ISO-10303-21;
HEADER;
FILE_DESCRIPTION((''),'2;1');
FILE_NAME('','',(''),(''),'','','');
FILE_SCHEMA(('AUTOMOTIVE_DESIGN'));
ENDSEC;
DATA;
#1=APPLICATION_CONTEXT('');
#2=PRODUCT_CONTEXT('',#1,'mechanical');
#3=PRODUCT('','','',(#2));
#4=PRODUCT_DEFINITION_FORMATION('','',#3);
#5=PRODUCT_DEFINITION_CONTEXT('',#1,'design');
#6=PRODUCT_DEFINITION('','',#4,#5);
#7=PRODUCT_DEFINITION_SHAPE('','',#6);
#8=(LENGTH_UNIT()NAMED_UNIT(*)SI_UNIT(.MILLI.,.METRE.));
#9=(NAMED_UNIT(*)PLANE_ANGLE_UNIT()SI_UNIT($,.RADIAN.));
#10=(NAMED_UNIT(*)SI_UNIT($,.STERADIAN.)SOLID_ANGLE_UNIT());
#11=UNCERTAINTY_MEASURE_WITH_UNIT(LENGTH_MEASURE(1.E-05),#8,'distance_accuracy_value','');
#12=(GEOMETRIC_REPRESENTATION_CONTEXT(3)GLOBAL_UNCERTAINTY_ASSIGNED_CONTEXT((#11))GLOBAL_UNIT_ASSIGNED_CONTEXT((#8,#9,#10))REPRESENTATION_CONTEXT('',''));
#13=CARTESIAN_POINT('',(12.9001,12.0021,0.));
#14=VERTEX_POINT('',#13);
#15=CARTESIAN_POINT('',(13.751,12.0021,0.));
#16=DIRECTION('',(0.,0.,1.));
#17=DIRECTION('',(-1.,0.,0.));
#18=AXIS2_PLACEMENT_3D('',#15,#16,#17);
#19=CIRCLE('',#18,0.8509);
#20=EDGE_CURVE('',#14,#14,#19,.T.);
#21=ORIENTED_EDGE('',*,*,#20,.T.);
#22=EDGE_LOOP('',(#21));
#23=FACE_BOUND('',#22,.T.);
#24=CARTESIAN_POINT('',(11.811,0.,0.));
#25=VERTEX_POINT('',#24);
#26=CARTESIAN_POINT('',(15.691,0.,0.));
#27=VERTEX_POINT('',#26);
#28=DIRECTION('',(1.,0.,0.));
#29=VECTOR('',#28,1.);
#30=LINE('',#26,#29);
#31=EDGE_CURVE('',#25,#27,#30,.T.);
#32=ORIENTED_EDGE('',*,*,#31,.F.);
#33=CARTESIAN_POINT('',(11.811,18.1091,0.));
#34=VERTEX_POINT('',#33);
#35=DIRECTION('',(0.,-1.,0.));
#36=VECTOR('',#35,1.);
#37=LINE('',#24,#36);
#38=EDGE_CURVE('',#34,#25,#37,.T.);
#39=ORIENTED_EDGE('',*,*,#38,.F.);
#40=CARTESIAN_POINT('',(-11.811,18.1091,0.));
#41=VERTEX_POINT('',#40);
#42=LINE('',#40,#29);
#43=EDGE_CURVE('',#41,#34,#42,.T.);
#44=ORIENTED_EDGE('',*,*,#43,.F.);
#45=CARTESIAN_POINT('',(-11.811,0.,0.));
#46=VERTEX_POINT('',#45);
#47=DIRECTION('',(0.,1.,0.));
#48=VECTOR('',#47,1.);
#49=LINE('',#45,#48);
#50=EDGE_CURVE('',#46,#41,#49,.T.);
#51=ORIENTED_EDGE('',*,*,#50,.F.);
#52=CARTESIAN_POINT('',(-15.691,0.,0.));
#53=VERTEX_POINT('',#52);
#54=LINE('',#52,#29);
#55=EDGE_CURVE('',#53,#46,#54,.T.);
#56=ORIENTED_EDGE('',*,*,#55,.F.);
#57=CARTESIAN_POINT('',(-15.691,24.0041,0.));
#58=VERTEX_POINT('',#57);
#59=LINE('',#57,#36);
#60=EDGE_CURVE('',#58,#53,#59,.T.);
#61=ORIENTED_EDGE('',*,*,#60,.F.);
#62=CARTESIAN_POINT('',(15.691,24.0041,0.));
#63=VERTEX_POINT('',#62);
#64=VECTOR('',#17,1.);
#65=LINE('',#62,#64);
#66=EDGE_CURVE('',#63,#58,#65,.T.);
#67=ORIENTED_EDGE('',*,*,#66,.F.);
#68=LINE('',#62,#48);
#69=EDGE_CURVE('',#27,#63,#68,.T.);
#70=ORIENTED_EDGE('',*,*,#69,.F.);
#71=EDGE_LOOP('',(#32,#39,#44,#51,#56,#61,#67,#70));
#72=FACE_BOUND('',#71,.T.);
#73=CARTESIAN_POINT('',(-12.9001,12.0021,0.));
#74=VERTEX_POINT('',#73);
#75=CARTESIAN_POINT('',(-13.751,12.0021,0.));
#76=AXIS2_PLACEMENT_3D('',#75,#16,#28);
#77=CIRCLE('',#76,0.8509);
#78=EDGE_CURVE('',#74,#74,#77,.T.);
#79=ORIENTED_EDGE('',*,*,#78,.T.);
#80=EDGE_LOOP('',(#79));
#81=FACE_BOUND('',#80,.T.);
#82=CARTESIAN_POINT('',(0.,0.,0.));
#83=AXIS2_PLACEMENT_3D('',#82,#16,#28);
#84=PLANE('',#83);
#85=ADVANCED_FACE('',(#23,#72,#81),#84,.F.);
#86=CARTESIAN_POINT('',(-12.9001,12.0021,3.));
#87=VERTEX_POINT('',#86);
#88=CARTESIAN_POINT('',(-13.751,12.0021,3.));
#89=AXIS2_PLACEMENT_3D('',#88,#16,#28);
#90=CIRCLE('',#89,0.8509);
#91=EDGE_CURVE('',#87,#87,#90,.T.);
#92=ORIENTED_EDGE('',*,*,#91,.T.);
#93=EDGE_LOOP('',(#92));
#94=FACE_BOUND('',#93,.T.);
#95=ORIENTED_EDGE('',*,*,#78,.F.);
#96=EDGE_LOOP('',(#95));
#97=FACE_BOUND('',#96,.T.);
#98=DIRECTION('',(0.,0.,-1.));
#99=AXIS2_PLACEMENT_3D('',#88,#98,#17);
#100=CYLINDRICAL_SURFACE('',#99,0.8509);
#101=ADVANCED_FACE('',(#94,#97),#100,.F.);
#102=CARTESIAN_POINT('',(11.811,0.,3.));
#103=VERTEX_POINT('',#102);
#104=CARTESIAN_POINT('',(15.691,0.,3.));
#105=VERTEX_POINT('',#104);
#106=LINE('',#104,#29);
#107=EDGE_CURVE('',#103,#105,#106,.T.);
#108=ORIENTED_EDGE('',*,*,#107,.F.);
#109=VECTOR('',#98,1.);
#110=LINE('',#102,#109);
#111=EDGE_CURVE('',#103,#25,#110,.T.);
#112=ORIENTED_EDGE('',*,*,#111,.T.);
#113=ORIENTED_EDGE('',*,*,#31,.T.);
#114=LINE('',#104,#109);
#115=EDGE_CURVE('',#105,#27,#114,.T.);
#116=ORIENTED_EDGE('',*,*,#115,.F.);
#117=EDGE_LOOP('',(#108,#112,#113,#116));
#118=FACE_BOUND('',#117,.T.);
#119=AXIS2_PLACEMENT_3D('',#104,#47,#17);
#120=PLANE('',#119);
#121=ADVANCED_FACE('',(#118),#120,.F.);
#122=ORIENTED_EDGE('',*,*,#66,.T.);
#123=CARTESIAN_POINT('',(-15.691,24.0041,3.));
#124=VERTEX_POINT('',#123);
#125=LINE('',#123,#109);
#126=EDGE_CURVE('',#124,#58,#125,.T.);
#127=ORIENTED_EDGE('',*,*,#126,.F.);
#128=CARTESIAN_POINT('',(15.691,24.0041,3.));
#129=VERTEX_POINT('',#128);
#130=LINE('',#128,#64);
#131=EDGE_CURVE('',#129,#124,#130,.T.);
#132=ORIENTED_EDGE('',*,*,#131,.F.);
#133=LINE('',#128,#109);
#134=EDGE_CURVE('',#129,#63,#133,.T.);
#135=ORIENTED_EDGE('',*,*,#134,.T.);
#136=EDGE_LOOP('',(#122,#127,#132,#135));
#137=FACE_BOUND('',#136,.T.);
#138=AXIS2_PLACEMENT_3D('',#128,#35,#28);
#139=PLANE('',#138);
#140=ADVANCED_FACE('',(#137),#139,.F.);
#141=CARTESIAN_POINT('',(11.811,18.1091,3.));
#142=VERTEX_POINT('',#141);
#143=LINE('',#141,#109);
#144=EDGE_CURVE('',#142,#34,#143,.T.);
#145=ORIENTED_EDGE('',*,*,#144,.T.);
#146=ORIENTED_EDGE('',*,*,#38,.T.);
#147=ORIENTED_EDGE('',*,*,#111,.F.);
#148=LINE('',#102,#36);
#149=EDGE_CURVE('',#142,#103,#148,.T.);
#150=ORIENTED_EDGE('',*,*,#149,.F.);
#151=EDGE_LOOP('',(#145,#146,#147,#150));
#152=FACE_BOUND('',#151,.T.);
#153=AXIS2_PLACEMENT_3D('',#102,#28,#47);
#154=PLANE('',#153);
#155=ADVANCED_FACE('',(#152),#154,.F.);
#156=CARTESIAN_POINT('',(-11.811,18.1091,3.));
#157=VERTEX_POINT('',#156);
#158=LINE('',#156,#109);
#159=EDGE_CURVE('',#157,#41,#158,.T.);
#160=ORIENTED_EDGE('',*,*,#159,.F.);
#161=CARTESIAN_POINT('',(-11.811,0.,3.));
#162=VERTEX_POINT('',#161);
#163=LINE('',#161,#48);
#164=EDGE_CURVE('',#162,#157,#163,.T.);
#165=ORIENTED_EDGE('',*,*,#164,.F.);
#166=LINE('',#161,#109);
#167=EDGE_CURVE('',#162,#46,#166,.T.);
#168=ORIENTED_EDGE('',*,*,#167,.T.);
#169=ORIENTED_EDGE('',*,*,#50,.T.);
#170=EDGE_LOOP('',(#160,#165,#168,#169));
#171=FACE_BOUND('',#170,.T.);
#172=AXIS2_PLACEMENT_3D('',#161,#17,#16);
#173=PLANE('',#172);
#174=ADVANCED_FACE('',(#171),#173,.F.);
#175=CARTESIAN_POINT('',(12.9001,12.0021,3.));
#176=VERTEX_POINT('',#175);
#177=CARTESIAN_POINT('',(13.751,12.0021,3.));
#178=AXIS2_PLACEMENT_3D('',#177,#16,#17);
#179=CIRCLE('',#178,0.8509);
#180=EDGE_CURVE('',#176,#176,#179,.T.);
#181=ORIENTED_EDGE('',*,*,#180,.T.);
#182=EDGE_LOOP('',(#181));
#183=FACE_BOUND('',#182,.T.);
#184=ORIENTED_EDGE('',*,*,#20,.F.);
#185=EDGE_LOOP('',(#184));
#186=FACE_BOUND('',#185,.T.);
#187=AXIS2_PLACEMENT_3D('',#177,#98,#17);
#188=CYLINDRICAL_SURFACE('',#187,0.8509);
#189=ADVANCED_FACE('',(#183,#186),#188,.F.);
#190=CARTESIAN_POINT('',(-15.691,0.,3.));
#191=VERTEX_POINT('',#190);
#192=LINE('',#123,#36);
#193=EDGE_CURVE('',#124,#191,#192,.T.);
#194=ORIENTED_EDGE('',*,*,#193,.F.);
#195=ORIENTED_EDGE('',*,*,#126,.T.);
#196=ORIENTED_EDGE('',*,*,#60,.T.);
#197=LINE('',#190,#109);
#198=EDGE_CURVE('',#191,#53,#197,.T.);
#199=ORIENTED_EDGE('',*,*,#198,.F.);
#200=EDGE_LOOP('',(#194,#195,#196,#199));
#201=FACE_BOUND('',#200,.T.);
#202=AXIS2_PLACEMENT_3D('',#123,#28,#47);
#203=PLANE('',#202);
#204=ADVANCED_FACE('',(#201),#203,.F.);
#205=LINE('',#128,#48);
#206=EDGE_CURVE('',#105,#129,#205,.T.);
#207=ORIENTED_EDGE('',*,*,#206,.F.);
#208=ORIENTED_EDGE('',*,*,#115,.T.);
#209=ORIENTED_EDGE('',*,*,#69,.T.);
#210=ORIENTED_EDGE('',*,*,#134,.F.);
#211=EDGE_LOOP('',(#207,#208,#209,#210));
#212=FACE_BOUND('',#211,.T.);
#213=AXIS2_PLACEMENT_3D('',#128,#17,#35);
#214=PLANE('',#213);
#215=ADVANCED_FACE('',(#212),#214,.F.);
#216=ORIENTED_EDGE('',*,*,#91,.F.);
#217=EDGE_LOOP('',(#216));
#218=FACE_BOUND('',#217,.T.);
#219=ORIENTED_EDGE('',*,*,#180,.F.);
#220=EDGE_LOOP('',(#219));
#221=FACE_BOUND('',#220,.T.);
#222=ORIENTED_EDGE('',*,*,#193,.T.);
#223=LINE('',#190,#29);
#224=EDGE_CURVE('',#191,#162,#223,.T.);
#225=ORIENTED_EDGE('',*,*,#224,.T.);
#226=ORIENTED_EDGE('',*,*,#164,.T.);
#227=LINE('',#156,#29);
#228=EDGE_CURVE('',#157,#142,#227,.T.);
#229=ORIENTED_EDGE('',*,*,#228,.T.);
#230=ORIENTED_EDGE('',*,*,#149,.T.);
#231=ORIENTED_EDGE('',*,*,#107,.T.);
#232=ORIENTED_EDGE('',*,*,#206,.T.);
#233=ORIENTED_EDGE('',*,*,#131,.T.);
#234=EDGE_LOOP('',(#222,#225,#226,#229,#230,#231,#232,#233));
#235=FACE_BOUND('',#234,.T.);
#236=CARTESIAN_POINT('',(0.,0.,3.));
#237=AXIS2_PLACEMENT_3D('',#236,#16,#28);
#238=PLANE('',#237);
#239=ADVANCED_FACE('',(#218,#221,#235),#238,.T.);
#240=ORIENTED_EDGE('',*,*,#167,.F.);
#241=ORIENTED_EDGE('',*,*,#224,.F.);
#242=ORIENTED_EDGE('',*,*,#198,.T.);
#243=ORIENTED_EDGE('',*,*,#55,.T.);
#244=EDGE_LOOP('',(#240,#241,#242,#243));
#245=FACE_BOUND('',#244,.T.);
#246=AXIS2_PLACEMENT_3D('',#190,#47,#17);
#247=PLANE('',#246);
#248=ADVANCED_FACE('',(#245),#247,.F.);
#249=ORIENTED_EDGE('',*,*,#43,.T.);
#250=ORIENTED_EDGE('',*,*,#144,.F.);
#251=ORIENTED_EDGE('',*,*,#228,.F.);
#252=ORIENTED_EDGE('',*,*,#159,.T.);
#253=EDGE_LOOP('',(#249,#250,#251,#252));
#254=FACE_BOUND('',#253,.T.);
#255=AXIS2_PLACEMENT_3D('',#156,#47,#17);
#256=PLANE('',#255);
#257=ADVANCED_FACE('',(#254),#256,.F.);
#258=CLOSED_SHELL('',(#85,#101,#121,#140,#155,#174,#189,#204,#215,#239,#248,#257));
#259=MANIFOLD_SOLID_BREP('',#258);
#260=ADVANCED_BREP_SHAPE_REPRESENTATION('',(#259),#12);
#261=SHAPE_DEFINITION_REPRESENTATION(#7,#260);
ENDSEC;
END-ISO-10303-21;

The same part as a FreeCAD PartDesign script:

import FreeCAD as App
import Part
import Sketcher
from FreeCAD import Vector
Q = App.Units.Quantity


def add_polygon(sketch, points):
    """Adds a closed chain of lines whose ends are joined by coincident constraints."""
    first, n = sketch.GeometryCount, len(points)
    for a, b in zip(points, points[1:] + points[:1]):
        sketch.addGeometry(Part.LineSegment(App.Vector(*a, 0), App.Vector(*b, 0)), False)
    for i in range(n):
        sketch.addConstraint(Sketcher.Constraint("Coincident", first + i, 2, first + (i + 1) % n, 1))

doc = App.newDocument("Part")
body = doc.addObject("PartDesign::Body", "Body")

# Sketch on XY plane
sketch1 = doc.addObject("Sketcher::SketchObject", "Sketch")
body.addObject(sketch1)
sketch1.AttachmentSupport = (doc.XY_Plane, [""])
sketch1.MapMode = "FlatFace"
add_polygon(sketch1, [(15.7, 24), (-15.7, 24), (-15.7, 0), (-11.8, 0), (-11.8, 18.1), (11.8, 18.1), (11.8, 0), (15.7, 0)])  # lines 0-7
sketch1.addGeometry(Part.Circle(Vector(-13.8, 12, 0), Vector(0, 0, 1), 0.9), False)  # 8
sketch1.addGeometry(Part.Circle(Vector(13.8, 12, 0), Vector(0, 0, 1), 0.9), False)  # 9
sketch1.addConstraint(Sketcher.Constraint("Horizontal", 0))
sketch1.addConstraint(Sketcher.Constraint("Vertical", 1))
sketch1.addConstraint(Sketcher.Constraint("Horizontal", 2))
sketch1.addConstraint(Sketcher.Constraint("Vertical", 3))
sketch1.addConstraint(Sketcher.Constraint("Horizontal", 4))
sketch1.addConstraint(Sketcher.Constraint("Vertical", 5))
sketch1.addConstraint(Sketcher.Constraint("Horizontal", 6))
sketch1.addConstraint(Sketcher.Constraint("Vertical", 7))
sketch1.addConstraint(Sketcher.Constraint("Equal", 8, 9))
sketch1.addConstraint(Sketcher.Constraint("Symmetric", 2, 2, 5, 2, -1, 1))
sketch1.addConstraint(Sketcher.Constraint("Symmetric", 8, 3, 9, 3, -2))
sketch1.addConstraint(Sketcher.Constraint("Symmetric", 1, 2, 6, 2, -2))
sketch1.addConstraint(Sketcher.Constraint("Diameter", 8, Q("0.067 in")))
sketch1.addConstraint(Sketcher.Constraint("DistanceX", 4, 1, 4, 2, Q("0.93 in")))
sketch1.addConstraint(Sketcher.Constraint("DistanceX", 0, 2, 0, 1, 31.382))
sketch1.addConstraint(Sketcher.Constraint("DistanceY", 1, 2, 1, 1, 24.0041))
sketch1.addConstraint(Sketcher.Constraint("DistanceY", 3, 1, 3, 2, 18.1091))
sketch1.addConstraint(Sketcher.Constraint("DistanceX", 8, 3, -1, 1, 13.751))
sketch1.addConstraint(Sketcher.Constraint("DistanceY", -1, 1, 8, 3, 12.0021))
pad1 = doc.addObject("PartDesign::Pad", "Pad")
body.addObject(pad1)
pad1.Profile = sketch1
pad1.Length = 3

doc.recompute()
